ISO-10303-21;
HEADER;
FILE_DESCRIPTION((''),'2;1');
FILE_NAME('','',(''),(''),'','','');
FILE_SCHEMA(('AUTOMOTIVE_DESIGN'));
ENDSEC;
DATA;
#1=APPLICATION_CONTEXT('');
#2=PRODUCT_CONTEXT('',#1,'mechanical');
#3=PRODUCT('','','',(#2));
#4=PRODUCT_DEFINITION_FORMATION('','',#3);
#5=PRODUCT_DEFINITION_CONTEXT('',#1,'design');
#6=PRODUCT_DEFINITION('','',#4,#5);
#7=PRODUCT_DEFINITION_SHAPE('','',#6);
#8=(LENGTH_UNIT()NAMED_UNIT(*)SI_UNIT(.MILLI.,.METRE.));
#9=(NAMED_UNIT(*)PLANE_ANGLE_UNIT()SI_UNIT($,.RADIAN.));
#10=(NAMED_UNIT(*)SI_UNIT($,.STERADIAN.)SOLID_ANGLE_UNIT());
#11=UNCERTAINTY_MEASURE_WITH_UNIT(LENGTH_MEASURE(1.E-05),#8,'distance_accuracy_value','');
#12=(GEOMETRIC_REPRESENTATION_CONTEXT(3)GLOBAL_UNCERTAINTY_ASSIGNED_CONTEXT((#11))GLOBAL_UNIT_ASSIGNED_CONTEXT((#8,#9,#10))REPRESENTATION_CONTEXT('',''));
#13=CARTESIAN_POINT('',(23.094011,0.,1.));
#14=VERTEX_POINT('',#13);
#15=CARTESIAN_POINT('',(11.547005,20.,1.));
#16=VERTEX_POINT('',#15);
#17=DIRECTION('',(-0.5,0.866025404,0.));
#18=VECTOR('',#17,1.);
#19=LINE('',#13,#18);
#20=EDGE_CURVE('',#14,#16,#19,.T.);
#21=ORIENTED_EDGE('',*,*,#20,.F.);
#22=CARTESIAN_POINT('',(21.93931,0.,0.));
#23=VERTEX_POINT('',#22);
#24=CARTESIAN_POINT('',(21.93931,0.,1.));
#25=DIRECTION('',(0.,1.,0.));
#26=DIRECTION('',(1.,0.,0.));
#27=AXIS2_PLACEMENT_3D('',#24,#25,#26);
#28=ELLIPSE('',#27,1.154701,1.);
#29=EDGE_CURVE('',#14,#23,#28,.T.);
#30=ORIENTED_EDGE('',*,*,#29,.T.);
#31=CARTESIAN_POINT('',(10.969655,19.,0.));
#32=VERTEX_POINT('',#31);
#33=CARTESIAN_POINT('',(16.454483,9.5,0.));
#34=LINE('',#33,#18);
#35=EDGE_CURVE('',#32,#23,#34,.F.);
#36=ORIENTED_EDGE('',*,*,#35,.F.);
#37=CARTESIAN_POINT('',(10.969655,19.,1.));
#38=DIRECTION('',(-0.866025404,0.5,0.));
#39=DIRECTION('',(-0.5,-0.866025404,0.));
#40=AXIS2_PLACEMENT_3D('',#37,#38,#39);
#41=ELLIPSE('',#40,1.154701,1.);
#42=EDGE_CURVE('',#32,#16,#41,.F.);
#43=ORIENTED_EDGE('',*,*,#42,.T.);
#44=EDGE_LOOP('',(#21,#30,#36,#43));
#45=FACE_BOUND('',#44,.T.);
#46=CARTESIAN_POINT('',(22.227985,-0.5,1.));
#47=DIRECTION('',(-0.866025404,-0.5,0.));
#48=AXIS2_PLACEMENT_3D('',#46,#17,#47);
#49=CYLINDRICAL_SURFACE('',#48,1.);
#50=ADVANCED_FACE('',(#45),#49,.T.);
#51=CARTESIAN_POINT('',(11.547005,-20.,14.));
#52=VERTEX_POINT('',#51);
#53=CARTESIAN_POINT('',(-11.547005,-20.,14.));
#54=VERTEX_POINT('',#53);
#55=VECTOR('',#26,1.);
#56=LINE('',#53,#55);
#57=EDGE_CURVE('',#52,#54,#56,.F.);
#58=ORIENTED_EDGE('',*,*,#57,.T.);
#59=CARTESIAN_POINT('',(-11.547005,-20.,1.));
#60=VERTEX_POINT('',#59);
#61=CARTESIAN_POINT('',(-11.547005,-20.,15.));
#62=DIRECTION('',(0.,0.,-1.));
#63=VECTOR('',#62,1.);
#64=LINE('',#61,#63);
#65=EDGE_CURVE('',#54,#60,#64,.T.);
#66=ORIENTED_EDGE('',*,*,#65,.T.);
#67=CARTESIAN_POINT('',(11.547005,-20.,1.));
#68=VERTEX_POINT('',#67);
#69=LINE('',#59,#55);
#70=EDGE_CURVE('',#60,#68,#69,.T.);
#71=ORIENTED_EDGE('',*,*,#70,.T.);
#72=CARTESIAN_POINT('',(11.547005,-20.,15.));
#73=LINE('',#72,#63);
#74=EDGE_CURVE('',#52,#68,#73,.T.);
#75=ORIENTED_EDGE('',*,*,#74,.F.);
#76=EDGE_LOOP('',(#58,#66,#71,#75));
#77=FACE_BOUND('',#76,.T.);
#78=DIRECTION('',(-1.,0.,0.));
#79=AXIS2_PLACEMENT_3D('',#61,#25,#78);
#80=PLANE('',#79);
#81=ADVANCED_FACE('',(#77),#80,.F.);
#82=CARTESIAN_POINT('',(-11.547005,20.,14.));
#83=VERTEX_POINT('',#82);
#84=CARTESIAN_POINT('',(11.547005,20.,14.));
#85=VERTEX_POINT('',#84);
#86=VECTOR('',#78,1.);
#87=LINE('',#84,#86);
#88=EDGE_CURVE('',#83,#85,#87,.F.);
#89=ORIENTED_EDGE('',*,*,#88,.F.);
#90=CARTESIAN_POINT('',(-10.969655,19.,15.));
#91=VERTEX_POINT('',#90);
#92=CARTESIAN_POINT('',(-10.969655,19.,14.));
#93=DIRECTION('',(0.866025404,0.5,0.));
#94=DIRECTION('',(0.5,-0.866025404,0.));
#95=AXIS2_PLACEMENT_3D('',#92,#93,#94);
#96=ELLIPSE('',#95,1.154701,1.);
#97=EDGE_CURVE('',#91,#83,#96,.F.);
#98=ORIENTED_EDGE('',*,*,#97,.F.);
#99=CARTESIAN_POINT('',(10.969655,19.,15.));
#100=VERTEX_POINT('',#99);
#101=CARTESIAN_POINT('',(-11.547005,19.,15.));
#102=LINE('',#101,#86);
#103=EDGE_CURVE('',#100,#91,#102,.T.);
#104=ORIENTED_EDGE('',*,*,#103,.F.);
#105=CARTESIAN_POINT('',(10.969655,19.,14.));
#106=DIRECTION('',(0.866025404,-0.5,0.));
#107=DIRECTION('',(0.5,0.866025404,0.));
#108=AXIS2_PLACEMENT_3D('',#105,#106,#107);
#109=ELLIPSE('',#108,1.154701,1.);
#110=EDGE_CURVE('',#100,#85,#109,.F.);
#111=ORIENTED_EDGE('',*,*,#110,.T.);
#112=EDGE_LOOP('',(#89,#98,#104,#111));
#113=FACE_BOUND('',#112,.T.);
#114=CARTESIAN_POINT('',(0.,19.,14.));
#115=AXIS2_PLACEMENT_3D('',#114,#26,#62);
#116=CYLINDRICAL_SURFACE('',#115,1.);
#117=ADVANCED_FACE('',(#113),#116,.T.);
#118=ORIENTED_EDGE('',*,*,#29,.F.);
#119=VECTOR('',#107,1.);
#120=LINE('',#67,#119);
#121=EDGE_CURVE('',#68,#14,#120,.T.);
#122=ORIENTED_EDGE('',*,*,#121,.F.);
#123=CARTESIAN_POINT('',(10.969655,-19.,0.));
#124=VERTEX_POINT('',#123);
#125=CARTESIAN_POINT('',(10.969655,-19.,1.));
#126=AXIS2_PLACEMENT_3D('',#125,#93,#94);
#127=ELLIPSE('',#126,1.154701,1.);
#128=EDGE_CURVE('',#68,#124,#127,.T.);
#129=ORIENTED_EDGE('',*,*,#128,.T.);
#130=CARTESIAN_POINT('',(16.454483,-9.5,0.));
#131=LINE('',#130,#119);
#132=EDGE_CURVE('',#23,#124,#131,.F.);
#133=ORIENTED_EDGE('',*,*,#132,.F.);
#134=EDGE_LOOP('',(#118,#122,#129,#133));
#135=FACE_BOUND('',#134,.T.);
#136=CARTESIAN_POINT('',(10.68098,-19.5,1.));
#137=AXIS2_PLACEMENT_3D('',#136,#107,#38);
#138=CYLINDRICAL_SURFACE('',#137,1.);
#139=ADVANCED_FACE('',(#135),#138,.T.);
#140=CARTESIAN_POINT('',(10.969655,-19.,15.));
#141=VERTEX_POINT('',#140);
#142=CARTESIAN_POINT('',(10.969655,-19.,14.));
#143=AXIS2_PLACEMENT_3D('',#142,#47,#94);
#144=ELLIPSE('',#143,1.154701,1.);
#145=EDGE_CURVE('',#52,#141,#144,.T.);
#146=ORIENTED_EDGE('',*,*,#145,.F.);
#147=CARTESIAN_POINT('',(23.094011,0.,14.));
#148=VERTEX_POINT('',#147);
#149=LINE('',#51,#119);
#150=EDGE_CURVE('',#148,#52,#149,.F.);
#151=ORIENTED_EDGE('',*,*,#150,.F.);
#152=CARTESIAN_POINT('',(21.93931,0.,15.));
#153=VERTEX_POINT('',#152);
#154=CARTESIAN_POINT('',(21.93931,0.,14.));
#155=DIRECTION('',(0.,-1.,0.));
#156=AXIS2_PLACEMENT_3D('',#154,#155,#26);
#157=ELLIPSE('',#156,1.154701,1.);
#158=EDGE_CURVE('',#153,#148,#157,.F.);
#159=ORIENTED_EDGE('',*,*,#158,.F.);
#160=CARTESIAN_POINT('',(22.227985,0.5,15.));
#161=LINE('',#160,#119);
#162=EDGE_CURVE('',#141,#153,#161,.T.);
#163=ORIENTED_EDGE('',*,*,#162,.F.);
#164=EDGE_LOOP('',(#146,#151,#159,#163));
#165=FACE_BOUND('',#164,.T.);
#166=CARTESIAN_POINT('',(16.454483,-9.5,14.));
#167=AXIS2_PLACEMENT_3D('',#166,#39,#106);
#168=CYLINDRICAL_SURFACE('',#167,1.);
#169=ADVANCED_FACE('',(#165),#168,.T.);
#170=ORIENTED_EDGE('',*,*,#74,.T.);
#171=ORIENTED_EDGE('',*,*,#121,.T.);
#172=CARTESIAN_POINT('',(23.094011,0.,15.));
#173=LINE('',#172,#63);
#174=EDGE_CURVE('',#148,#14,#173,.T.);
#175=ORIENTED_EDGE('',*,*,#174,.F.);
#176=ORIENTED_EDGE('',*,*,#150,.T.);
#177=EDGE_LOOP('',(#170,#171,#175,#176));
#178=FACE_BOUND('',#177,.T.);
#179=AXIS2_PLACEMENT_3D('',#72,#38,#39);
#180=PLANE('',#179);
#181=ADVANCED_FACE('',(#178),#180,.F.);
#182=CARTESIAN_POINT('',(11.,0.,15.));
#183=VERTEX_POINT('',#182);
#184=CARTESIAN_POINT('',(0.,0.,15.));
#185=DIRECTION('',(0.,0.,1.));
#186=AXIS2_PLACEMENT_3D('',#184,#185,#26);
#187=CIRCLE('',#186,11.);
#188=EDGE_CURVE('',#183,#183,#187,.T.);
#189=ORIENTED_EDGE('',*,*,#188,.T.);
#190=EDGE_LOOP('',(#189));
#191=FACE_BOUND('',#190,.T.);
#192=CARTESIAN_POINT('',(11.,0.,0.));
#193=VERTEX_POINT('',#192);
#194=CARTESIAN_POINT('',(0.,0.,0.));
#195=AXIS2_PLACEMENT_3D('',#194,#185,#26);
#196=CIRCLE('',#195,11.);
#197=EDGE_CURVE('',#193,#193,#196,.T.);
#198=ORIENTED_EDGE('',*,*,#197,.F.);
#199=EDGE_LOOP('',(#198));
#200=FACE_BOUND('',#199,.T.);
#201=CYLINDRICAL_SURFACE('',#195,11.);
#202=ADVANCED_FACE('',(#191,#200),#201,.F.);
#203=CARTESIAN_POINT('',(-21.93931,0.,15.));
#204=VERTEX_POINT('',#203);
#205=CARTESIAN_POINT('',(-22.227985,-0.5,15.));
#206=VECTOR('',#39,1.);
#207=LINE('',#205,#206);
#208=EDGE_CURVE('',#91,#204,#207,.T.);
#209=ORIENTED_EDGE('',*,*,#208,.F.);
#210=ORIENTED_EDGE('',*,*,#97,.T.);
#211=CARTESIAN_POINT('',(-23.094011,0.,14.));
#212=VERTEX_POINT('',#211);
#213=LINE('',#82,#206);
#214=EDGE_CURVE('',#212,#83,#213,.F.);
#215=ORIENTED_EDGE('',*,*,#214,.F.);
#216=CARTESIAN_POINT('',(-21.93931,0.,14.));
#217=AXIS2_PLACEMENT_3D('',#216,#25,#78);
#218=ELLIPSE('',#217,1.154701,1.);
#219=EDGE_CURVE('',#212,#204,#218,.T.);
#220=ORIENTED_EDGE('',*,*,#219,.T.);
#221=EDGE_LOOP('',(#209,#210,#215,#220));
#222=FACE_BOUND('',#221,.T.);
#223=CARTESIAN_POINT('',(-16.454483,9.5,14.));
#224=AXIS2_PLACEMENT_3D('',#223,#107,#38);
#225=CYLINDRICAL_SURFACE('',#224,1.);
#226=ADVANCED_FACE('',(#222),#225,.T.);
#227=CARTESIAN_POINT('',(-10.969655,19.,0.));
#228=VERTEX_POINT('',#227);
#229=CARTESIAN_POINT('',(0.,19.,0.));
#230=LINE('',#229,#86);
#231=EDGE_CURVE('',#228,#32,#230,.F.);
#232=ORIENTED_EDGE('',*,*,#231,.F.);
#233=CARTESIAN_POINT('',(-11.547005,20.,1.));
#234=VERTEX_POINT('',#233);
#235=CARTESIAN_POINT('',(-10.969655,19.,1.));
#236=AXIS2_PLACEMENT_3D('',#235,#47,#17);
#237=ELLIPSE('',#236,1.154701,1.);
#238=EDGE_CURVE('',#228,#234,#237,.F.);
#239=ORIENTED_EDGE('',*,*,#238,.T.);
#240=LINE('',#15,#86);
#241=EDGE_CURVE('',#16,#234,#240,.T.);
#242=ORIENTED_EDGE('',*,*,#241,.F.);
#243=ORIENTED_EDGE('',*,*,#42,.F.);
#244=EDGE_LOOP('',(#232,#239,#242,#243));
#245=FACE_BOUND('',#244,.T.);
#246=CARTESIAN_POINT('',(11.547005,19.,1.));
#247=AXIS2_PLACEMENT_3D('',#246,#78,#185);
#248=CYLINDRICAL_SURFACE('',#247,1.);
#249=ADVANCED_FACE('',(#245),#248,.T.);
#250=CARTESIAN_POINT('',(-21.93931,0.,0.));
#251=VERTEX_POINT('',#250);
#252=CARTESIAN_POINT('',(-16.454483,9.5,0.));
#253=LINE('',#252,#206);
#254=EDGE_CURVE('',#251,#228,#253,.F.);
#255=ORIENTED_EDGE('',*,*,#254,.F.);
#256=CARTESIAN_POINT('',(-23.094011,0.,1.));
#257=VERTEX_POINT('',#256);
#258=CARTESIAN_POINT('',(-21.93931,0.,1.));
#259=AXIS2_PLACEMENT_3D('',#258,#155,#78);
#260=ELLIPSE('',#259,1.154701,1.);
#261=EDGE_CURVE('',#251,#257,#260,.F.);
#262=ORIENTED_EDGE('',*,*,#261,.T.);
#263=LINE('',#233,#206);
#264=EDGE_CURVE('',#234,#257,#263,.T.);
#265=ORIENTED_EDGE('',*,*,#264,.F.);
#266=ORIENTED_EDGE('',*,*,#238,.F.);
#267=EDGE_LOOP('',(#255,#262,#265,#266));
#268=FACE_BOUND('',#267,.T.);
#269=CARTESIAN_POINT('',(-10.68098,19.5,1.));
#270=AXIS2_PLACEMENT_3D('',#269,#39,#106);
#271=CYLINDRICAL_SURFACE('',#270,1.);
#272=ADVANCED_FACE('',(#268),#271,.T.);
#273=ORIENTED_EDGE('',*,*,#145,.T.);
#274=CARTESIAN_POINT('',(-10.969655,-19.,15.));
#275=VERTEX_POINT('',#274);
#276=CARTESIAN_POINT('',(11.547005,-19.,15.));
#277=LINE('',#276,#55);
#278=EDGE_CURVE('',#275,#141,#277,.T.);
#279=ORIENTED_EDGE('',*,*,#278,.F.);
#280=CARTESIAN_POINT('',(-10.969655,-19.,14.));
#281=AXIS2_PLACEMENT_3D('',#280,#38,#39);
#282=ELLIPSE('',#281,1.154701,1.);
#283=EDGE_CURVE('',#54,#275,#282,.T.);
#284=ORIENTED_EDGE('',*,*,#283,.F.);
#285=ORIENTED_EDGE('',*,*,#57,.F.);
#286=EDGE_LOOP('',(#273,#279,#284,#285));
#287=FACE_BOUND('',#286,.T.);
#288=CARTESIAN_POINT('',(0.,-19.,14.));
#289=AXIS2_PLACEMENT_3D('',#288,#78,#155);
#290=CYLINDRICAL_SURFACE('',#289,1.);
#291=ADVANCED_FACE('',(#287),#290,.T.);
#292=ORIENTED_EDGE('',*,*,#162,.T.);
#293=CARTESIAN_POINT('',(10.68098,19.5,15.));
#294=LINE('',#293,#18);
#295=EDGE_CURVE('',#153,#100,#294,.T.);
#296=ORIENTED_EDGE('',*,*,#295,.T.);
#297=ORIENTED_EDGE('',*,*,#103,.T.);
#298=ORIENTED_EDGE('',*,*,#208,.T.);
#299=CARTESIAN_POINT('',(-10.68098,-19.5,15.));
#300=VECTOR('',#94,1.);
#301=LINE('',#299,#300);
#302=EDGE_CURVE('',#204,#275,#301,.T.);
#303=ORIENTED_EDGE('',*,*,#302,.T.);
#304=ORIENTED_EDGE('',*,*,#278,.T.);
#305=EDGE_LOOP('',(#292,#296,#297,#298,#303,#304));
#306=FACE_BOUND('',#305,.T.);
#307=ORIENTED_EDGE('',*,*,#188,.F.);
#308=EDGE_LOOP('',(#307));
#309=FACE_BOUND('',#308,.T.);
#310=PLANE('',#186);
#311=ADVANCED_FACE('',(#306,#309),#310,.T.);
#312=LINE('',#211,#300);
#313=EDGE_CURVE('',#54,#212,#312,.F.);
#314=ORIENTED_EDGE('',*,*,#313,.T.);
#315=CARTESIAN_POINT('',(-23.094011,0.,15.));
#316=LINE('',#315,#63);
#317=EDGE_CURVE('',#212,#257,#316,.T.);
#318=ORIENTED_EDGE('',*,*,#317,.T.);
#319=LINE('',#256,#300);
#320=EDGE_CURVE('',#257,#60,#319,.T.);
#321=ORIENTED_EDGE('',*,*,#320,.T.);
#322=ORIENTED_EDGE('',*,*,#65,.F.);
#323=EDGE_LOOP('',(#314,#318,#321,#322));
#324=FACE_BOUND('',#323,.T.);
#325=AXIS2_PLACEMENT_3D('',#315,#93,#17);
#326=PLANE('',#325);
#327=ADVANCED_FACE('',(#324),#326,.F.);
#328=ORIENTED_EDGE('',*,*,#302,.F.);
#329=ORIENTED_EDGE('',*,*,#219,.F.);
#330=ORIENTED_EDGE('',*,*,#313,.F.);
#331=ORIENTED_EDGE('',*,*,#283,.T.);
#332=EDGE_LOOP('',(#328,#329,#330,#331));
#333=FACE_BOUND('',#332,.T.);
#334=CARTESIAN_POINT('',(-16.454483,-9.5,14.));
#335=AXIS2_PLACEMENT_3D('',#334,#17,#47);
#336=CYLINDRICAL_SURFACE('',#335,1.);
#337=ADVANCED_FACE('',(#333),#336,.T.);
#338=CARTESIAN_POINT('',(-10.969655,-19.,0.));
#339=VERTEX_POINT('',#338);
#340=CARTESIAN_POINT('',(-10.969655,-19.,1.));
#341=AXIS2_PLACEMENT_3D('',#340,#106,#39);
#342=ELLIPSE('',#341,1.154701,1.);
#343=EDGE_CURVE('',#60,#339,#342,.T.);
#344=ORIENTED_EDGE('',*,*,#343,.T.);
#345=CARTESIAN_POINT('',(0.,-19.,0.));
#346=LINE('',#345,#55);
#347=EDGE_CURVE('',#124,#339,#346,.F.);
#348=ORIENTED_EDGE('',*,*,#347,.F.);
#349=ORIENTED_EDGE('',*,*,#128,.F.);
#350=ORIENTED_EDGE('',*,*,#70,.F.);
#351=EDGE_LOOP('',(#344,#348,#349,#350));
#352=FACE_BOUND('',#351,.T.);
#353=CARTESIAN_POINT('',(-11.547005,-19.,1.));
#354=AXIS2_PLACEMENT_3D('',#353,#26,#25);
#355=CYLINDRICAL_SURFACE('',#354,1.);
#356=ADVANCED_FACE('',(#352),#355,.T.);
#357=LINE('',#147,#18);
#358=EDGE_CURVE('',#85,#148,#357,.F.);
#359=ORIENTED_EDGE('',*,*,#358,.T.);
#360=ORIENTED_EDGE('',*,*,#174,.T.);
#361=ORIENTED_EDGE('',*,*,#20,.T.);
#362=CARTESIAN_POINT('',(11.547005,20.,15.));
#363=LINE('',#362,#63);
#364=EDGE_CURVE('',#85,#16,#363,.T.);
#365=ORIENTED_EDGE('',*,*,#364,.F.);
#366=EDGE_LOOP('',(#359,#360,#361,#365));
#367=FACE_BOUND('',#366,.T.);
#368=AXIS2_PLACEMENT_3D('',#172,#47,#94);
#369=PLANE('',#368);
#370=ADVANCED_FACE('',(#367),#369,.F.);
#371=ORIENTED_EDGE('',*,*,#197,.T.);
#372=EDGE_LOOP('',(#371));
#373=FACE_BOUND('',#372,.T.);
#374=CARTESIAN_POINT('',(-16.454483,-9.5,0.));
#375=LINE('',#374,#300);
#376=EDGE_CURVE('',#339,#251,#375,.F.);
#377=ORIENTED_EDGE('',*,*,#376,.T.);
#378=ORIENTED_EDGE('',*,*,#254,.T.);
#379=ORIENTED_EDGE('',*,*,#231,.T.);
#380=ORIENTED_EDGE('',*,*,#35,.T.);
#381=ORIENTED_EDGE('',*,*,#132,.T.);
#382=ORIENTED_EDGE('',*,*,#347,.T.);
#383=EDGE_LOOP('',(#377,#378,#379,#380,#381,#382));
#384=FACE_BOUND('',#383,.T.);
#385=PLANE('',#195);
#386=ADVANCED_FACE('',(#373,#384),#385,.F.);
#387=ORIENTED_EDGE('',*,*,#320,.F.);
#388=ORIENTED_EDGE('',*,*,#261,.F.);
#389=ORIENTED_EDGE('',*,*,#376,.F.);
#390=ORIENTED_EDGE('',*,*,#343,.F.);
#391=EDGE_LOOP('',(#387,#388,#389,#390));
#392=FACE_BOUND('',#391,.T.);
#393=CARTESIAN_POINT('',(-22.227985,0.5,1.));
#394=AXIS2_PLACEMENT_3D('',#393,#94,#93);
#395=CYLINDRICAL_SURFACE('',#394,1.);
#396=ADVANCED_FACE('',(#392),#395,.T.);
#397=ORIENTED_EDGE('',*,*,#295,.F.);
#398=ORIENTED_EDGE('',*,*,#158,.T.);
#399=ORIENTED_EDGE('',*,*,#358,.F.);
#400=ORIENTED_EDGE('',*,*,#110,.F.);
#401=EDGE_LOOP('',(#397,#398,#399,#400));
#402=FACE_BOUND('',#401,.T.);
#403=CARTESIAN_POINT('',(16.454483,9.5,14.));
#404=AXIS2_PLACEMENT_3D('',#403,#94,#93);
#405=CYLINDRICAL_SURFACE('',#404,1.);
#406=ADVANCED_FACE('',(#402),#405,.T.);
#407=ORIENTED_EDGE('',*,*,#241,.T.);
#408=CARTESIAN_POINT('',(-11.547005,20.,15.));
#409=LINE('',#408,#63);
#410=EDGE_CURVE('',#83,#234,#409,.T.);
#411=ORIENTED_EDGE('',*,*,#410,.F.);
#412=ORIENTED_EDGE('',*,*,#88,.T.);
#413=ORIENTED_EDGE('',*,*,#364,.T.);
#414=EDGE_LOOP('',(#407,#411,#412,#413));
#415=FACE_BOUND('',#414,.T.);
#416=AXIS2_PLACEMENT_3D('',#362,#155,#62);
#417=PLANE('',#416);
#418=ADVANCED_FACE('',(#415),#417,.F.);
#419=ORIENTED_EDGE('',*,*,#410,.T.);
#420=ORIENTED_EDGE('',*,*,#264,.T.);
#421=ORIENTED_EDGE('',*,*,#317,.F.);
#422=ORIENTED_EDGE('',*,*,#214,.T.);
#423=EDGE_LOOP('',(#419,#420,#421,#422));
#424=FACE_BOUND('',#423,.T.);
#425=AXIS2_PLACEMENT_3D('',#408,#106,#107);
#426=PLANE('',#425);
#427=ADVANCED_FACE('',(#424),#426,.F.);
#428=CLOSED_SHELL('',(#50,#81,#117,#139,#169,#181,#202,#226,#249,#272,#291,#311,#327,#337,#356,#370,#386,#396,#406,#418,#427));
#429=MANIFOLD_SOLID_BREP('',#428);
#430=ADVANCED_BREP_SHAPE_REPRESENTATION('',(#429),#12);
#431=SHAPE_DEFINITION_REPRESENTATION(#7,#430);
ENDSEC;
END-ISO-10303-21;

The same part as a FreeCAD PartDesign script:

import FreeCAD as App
import Part
import Sketcher

V = App.Vector
Q = App.Units.Quantity


def edges_at(feature, points):
    """Names of the edges that pass closest to the given points."""
    edges = feature.Shape.Edges
    near = lambda p: min(range(len(edges)), key=lambda i: edges[i].distToShape(Part.Vertex(*p))[0])
    return sorted({f"Edge{near(p) + 1}" for p in points})


def add_polygon(sketch, points):
    """Adds a closed chain of lines whose ends are joined by coincident constraints."""
    first, n = sketch.GeometryCount, len(points)
    for a, b in zip(points, points[1:] + points[:1]):
        sketch.addGeometry(Part.LineSegment(App.Vector(*a, 0), App.Vector(*b, 0)), False)
    for i in range(n):
        sketch.addConstraint(Sketcher.Constraint("Coincident", first + i, 2, first + (i + 1) % n, 1))

doc = App.newDocument("Part")
body = doc.addObject("PartDesign::Body", "Body")

sketch1 = body.newObject("Sketcher::SketchObject", "Sketch")
sketch1.AttachmentSupport = (doc.getObject("XY_Plane"), [""])
sketch1.MapMode = "FlatFace"
add_polygon(sketch1, [(11.547005, -20), (23.094011, 0), (11.547005, 20), (-11.547005, 20), (-23.094011, 0), (-11.547005, -20)])
sketch1.addConstraint([
    Sketcher.Constraint("Horizontal", 2),
    Sketcher.Constraint("Horizontal", 5),
    Sketcher.Constraint("Symmetric", 0, 2, 3, 2, -1, 1),
    Sketcher.Constraint("Symmetric", 1, 2, 4, 2, -1, 1),
    Sketcher.Constraint("PointOnObject", 0, 2, -1),
    Sketcher.Constraint("Parallel", 0, 3),
    Sketcher.Constraint("Vertical", 2, 2, 4, 2),
    Sketcher.Constraint("Angle", 0, Q("60 deg")),
    Sketcher.Constraint("DistanceY", -1, 1, 1, 2, Q("20 mm")),
    Sketcher.Constraint("DistanceX", 2, 2, 2, 1, Q("23.094011 mm")),
])
pad1 = body.newObject("PartDesign::Pad", "Pad")
pad1.Profile = sketch1
pad1.Length = 15
doc.recompute()

fillet = body.newObject("PartDesign::Fillet", "Fillet")
fillet.Base = (pad1, edges_at(pad1, [
    (17.321, 10, 15),
    (0, 20, 15),
    (-17.321, 10, 15),
    (-17.321, -10, 15),
    (0, -20, 15),
    (-17.321, -10, 0),
    (-17.321, 10, 0),
    (0, 20, 0),
    (17.321, -10, 15),
    (17.321, 10, 0),
    (17.321, -10, 0),
    (0, -20, 0),
]))
fillet.Radius = 1

sketch2 = body.newObject("Sketcher::SketchObject", "Sketch001")
sketch2.AttachmentSupport = (doc.getObject("XY_Plane"), [""])
sketch2.MapMode = "FlatFace"
sketch2.AttachmentOffset = App.Placement(V(0, 0, 15), App.Rotation())
sketch2.addGeometry(Part.Circle(V(0, 0, 0), V(0, 0, 1), 11), False)
sketch2.addConstraint([
    Sketcher.Constraint("Coincident", 0, 3, -1, 1),
    Sketcher.Constraint("Diameter", 0, Q("22 mm")),
])
pocket1 = body.newObject("PartDesign::Pocket", "Pocket")
pocket1.Profile = sketch2
pocket1.Type = "ThroughAll"

doc.recompute()
